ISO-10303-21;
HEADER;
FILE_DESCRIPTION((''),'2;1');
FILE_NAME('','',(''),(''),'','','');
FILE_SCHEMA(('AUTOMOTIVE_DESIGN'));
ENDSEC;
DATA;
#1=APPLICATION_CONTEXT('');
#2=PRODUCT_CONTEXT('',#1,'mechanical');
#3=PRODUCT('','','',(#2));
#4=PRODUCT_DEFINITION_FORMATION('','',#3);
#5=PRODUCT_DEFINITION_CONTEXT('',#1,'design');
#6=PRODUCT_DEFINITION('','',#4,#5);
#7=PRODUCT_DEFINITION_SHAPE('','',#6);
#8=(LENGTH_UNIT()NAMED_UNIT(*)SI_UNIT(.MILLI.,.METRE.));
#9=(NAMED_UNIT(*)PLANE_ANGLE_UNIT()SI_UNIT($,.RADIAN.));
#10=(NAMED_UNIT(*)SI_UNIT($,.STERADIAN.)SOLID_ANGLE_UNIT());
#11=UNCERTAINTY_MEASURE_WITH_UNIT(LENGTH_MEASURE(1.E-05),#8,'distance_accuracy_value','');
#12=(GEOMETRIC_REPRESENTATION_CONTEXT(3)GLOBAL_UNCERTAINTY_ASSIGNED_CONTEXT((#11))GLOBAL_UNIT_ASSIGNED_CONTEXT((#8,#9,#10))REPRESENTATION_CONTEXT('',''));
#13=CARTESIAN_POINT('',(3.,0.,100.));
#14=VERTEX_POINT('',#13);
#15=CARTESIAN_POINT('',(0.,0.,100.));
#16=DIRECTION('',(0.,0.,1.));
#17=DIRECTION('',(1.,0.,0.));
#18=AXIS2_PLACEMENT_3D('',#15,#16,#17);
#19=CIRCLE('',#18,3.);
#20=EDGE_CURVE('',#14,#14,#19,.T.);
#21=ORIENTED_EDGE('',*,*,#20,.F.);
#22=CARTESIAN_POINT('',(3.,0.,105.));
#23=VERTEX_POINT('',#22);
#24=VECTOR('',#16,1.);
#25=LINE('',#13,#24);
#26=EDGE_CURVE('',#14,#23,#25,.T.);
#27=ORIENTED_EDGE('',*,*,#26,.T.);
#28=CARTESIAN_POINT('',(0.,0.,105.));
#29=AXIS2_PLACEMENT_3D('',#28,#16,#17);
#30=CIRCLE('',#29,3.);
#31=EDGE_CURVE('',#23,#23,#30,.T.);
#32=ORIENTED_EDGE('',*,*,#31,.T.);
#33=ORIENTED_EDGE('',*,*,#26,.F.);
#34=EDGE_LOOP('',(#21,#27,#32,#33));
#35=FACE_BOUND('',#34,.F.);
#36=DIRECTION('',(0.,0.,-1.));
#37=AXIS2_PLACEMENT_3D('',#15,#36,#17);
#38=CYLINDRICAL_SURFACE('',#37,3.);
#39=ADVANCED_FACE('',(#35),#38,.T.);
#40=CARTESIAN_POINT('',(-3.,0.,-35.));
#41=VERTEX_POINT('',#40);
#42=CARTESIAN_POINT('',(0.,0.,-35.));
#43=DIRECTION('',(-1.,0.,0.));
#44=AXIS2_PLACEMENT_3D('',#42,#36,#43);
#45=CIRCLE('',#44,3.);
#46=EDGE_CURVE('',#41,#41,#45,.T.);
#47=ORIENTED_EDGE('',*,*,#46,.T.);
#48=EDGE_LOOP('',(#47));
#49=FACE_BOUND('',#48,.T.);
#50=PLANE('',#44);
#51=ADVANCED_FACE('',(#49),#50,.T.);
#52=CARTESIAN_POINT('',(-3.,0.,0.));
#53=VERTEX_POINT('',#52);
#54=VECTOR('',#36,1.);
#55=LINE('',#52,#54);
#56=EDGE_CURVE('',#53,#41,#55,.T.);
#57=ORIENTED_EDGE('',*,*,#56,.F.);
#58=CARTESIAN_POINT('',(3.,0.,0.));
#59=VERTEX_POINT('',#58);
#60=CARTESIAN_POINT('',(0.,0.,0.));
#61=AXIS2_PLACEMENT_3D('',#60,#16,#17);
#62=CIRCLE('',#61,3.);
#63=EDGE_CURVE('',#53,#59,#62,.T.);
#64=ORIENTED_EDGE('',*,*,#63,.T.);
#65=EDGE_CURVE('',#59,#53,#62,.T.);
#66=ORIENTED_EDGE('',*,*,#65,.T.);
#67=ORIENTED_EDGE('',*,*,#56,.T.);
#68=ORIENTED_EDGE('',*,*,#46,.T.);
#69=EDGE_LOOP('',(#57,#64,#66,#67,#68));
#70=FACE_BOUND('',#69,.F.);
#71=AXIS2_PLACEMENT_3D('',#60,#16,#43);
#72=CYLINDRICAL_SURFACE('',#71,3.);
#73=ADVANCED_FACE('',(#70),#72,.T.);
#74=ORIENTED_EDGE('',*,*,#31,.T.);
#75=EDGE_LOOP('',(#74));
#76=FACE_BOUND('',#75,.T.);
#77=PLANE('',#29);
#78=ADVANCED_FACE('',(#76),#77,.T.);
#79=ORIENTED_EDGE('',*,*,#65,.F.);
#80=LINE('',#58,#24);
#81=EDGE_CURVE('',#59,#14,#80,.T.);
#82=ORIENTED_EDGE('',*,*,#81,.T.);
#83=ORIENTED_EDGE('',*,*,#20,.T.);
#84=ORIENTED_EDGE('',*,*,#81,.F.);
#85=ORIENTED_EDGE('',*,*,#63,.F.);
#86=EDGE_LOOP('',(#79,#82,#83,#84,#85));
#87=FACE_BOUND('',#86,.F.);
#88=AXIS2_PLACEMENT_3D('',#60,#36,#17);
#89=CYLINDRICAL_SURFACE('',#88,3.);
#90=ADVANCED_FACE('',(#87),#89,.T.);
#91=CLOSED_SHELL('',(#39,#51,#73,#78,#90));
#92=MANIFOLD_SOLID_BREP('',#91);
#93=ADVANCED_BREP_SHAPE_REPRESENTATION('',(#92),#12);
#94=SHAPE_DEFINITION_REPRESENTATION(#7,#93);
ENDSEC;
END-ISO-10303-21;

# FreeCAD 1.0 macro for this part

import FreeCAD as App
import Part
import Sketcher
Q = App.Units.Quantity

doc = App.newDocument("Part")
params = doc.addObject("Spreadsheet::Sheet", "Params")
for row, (alias, value) in enumerate([
    ("sketch1_diameter", "6 mm"),
    ("pad1_length", "100 mm"),
    ("sketch2_diameter", "6 mm"),
    ("pad2_length", "35 mm"),
    ("sketch3_diameter", "6 mm"),
    ("pad3_length", "5 mm"),
], start=1):
    params.set(f"A{row}", alias)
    params.set(f"B{row}", "=" + value)
    params.setAlias(f"B{row}", alias)

body = doc.addObject("PartDesign::Body", "Body")

# Sketch on XY plane
sketch1 = body.newObject("Sketcher::SketchObject", "Sketch")
sketch1.AttachmentSupport = (doc.getObject("XY_Plane"), [""])
sketch1.MapMode = "FlatFace"
sketch1.addGeometry(Part.Circle(App.Vector(0, 0, 0), App.Vector(0, 0, 1), 3), False)
sketch1.addConstraint([
    Sketcher.Constraint("Coincident", 0, 3, -1, 1),
    Sketcher.Constraint("Diameter", 0, Q("6 mm")),
])
sketch1.setExpression("Constraints[1]", "Params.sketch1_diameter")
pad1 = body.newObject("PartDesign::Pad", "Pad")
pad1.Profile = sketch1
pad1.setExpression("Length", "Params.pad1_length")

# Sketch on XY plane
sketch2 = body.newObject("Sketcher::SketchObject", "Sketch001")
sketch2.AttachmentSupport = (doc.getObject("XY_Plane"), [""])
sketch2.MapMode = "FlatFace"
sketch2.addGeometry(Part.Circle(App.Vector(0, 0, 0), App.Vector(0, 0, 1), 3), False)
sketch2.addConstraint([
    Sketcher.Constraint("Coincident", 0, 3, -1, 1),
    Sketcher.Constraint("Diameter", 0, Q("6 mm")),
])
sketch2.setExpression("Constraints[1]", "Params.sketch2_diameter")
pad2 = body.newObject("PartDesign::Pad", "Pad001")
pad2.Profile = sketch2
pad2.setExpression("Length", "Params.pad2_length")
pad2.Reversed = True

# Sketch on XY plane
sketch3 = body.newObject("Sketcher::SketchObject", "Sketch002")
sketch3.AttachmentSupport = (doc.getObject("XY_Plane"), [""])
sketch3.MapMode = "FlatFace"
sketch3.AttachmentOffset = App.Placement(App.Vector(0, 0, 100), App.Rotation())
sketch3.addGeometry(Part.Circle(App.Vector(0, 0, 0), App.Vector(0, 0, 1), 3), False)
sketch3.addConstraint([
    Sketcher.Constraint("Coincident", 0, 3, -1, 1),
    Sketcher.Constraint("Diameter", 0, Q("6 mm")),
])
sketch3.setExpression("Constraints[1]", "Params.sketch3_diameter")
pad3 = body.newObject("PartDesign::Pad", "Pad002")
pad3.Profile = sketch3
pad3.setExpression("Length", "Params.pad3_length")

doc.recompute()
